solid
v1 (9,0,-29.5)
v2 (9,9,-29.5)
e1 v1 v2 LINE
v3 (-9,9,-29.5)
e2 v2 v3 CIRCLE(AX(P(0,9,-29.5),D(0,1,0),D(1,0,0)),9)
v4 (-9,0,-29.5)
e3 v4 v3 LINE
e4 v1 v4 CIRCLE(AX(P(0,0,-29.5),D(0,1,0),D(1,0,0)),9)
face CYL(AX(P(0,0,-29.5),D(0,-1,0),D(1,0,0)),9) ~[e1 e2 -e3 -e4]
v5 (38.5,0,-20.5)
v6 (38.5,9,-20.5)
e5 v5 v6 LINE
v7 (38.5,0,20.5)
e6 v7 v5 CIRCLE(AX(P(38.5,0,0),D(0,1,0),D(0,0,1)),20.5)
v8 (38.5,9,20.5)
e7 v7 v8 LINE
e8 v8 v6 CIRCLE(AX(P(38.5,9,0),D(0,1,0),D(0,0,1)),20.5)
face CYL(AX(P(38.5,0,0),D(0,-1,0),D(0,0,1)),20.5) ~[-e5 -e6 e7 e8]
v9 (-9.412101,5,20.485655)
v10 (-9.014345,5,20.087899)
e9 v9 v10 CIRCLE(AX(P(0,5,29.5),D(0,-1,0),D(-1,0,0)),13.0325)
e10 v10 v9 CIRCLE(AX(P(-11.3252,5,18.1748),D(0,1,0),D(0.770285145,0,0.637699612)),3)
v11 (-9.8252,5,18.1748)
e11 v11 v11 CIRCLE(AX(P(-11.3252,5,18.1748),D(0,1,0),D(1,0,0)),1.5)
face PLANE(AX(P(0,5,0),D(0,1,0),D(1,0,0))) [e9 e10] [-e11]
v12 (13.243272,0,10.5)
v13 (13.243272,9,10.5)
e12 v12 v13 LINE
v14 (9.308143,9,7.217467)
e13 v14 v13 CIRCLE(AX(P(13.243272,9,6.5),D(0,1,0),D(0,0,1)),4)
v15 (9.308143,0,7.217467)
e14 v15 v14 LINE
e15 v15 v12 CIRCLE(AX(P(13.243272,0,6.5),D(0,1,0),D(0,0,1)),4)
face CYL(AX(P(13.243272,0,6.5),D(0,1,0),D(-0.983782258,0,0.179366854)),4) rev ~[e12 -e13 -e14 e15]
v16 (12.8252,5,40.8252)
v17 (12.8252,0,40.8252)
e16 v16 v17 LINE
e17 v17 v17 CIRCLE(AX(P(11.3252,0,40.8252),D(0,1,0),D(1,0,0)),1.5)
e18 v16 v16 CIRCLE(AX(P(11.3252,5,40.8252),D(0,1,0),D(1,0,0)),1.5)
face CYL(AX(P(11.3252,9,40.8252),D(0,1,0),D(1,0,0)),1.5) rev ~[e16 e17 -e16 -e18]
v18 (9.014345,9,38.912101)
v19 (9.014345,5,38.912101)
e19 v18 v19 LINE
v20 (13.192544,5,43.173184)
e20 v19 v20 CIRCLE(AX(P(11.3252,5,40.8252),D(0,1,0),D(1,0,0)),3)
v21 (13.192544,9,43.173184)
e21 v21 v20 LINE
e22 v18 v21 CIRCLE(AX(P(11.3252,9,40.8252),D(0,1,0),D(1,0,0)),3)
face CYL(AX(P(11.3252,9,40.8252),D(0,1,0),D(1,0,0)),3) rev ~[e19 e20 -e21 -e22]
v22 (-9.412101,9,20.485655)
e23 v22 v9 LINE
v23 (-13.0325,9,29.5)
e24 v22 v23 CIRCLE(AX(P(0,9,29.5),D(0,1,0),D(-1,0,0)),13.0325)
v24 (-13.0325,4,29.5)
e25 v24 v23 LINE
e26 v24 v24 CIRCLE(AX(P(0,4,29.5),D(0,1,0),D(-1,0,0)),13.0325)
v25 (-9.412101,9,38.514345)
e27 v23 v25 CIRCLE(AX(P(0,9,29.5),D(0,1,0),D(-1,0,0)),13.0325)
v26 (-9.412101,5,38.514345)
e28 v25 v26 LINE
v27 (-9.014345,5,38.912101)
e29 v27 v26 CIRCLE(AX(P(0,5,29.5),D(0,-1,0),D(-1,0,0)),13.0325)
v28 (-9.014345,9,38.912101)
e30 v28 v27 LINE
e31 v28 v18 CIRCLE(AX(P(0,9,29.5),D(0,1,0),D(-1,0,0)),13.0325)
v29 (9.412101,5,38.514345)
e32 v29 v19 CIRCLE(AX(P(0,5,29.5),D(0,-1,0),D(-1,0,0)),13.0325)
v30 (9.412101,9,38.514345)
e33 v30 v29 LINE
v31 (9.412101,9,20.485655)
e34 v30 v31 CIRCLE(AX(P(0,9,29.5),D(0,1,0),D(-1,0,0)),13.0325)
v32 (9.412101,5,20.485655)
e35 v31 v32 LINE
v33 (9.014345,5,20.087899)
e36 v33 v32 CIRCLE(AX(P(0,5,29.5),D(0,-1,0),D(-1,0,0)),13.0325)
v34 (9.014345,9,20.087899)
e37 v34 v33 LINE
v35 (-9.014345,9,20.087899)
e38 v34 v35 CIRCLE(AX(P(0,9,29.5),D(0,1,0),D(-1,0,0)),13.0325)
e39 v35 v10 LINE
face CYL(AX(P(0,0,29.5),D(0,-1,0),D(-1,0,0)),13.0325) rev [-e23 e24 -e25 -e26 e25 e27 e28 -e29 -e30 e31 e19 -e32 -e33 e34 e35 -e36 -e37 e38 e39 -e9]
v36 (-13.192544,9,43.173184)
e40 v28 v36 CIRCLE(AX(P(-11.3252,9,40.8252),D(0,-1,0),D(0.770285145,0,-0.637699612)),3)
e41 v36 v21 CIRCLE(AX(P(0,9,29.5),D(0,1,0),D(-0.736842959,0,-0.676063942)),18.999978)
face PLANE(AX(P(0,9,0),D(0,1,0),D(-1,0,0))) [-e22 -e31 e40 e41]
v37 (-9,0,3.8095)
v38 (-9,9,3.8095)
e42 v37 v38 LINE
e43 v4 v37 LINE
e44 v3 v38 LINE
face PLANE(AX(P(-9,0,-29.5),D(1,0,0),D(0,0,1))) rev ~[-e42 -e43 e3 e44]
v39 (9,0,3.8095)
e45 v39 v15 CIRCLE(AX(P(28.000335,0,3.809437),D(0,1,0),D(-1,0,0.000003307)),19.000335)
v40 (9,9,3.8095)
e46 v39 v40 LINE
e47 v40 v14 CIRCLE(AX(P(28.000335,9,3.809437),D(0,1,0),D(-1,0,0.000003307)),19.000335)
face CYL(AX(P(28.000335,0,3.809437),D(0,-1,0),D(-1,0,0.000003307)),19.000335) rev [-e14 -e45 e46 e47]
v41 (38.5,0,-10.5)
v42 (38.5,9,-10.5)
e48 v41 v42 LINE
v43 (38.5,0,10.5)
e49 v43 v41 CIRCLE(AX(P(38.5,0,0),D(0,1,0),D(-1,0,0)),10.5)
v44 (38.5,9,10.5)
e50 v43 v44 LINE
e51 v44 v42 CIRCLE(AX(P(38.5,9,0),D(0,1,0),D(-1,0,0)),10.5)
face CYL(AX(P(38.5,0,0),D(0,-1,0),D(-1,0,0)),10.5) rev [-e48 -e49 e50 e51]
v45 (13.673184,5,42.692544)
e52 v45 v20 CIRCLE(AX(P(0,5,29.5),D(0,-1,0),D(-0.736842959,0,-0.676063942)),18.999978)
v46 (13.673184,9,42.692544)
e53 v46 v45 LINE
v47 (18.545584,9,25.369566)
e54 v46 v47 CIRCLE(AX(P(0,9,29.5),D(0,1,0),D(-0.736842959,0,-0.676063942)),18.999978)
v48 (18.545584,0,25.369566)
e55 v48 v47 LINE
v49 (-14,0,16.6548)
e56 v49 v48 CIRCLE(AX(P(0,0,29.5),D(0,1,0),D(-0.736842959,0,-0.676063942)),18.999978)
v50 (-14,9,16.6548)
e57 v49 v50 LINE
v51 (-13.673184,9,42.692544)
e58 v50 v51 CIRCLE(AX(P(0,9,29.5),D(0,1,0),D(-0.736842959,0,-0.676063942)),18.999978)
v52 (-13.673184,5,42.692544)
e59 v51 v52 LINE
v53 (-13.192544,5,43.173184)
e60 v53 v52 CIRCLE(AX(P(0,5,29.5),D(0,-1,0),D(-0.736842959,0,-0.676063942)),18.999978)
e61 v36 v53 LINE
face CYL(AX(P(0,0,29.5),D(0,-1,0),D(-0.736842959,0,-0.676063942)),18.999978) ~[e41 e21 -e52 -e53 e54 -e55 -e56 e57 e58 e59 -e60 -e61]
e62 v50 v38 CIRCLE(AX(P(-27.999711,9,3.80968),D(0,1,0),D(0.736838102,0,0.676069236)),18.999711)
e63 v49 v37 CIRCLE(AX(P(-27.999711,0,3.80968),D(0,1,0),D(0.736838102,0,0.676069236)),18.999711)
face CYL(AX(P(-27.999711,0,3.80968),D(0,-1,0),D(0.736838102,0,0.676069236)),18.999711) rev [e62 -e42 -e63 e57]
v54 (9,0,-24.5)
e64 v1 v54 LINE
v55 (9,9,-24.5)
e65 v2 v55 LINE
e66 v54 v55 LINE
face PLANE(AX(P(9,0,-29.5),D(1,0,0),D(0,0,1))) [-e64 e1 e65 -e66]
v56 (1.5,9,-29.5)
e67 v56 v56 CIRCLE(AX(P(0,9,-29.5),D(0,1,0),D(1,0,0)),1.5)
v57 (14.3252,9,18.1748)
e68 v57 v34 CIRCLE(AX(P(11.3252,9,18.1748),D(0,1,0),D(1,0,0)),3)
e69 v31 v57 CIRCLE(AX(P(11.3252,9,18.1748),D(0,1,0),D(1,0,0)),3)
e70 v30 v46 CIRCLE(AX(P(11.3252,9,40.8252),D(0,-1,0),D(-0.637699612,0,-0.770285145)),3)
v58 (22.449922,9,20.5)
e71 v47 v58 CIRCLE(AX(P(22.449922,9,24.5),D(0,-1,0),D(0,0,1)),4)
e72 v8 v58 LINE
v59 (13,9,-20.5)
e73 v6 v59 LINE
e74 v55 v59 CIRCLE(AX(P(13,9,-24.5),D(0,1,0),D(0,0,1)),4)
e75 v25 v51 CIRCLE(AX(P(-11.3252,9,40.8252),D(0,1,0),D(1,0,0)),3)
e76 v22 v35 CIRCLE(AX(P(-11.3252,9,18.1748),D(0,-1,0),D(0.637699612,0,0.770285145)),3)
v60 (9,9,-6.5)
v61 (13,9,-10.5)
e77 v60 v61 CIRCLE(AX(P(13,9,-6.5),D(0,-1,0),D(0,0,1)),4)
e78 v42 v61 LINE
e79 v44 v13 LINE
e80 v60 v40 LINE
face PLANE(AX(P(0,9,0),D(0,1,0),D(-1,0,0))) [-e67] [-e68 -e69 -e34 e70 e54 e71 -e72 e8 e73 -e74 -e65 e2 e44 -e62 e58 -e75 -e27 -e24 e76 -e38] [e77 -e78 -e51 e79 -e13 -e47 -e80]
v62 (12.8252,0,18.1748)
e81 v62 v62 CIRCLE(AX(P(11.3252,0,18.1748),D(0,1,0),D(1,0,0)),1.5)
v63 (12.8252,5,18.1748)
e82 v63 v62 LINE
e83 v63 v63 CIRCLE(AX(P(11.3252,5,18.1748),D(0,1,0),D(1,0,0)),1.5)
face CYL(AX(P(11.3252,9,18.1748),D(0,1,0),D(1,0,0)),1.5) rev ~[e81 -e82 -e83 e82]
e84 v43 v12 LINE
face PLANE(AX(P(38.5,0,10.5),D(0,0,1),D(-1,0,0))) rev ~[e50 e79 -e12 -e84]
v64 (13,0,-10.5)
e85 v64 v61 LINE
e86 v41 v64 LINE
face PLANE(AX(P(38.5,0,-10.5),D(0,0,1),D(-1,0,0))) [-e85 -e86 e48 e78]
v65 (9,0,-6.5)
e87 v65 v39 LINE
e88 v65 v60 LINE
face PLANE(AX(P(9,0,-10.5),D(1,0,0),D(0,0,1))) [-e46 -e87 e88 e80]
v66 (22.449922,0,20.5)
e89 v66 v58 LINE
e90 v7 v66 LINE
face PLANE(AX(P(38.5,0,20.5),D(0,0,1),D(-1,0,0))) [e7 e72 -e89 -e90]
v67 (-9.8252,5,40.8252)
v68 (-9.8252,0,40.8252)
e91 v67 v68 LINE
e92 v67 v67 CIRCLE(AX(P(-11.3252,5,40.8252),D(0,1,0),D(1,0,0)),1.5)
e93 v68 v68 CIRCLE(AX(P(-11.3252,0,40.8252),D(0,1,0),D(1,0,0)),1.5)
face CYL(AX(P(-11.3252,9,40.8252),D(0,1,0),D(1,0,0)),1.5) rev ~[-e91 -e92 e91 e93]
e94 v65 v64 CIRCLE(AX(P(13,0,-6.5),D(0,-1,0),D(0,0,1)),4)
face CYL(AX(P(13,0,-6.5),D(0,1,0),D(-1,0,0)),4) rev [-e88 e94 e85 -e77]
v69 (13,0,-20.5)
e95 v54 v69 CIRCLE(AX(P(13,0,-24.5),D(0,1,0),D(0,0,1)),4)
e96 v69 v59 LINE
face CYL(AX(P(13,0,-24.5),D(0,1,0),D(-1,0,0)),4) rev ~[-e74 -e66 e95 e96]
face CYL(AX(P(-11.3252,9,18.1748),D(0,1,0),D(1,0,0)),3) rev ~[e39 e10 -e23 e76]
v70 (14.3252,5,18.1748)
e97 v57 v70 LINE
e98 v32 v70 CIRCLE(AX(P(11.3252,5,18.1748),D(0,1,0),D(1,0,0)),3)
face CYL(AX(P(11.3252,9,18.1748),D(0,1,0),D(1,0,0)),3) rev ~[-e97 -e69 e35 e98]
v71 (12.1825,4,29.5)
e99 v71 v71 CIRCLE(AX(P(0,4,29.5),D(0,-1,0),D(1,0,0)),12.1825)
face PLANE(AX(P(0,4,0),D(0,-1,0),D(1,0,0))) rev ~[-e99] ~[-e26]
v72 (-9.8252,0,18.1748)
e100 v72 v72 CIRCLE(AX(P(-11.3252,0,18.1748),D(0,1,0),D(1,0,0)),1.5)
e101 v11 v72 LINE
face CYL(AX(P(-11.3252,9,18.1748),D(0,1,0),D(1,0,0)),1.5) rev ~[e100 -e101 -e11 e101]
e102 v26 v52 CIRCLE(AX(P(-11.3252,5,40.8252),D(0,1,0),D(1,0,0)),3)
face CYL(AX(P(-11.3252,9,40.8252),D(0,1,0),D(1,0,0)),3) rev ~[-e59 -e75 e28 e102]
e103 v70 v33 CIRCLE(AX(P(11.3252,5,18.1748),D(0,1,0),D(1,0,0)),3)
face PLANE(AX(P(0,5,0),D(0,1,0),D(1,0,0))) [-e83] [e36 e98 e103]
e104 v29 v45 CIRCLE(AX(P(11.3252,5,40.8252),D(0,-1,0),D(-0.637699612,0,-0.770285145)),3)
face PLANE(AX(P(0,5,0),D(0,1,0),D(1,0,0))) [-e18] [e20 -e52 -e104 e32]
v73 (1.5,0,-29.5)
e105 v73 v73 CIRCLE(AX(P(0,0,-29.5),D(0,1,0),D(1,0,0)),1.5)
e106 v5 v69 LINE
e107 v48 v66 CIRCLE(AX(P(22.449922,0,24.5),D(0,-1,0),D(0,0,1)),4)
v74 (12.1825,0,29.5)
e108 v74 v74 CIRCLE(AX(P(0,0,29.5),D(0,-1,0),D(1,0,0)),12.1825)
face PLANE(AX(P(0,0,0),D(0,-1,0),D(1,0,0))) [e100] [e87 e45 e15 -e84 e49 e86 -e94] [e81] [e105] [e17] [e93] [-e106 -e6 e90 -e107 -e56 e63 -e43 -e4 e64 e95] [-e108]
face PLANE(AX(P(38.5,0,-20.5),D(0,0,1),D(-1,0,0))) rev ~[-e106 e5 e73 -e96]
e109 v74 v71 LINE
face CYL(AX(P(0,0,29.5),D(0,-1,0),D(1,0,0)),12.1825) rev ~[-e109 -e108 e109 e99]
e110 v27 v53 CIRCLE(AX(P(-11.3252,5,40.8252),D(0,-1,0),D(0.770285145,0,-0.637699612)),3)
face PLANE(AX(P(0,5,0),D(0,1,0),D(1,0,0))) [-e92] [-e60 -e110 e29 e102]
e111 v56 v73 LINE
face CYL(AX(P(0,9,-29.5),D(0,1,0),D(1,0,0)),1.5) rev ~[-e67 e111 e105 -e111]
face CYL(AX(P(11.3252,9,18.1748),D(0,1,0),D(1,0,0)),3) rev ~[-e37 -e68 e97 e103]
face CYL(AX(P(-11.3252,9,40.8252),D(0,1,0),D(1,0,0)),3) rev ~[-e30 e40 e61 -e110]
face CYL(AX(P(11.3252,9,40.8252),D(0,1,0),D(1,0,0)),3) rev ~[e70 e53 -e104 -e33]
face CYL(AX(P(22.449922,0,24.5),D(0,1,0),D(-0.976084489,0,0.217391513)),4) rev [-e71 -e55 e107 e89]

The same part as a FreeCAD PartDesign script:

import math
import FreeCAD as App
import Part
import Sketcher

V = App.Vector


def edges_at(feature, points):
    """Names of the edges that pass closest to the given points."""
    edges = feature.Shape.Edges
    near = lambda p: min(range(len(edges)), key=lambda i: edges[i].distToShape(Part.Vertex(*p))[0])
    return sorted({f"Edge{near(p) + 1}" for p in points})

doc = App.newDocument("Part")
params = doc.addObject("Spreadsheet::Sheet", "Params")
for row, (alias, value) in enumerate([
    ("sketch1_radius", "19 mm"),
    ("sketch1_radius2", "9 mm"),
    ("sketch1_width", "29.5 mm"),
    ("pad1_length", "9 mm"),
    ("pad2_length", "4 mm"),
    ("sketch3_diameter", "3 mm"),
    ("sketch4_diameter", "3 mm"),
    ("sketch5_diameter", "6 mm"),
    ("pocket3_length", "4 mm"),
    ("fillet_radius", "4 mm"),
], start=1):
    params.set(f"A{row}", alias)
    params.set(f"B{row}", "=" + value)
    params.setAlias(f"B{row}", alias)

body = doc.addObject("PartDesign::Body", "Body")

# Sketch on XZ plane
sketch1 = doc.addObject("Sketcher::SketchObject", "Sketch")
body.addObject(sketch1)
sketch1.AttachmentSupport = (doc.XZ_Plane, [""])
sketch1.MapMode = "FlatFace"
sketch1.addGeometry(Part.ArcOfCircle(Part.Circle(V(-28, 3.8095, 0), V(0, 0, 1), 19.000046), math.radians(0), math.radians(42.537048)), False)
sketch1.addGeometry(Part.ArcOfCircle(Part.Circle(V(0, 29.5, 0), V(0, 0, 1), 18.999978), math.radians(-28.273714), math.radians(222.536826)), False)
sketch1.addGeometry(Part.LineSegment(V(16.7332, 20.5, 0), V(38.5, 20.5, 0)), False)
sketch1.addGeometry(Part.ArcOfCircle(Part.Circle(V(38.5, 0, 0), V(0, 0, 1), 20.5), math.radians(-90), math.radians(90)), False)
sketch1.addGeometry(Part.LineSegment(V(38.5, -20.5, 0), V(9, -20.5, 0)), False)
sketch1.addGeometry(Part.LineSegment(V(9, -20.5, 0), V(9, -29.5, 0)), False)
sketch1.addGeometry(Part.ArcOfCircle(Part.Circle(V(0, -29.5, 0), V(0, 0, 1), 9), math.radians(180), math.radians(360)), False)
sketch1.addGeometry(Part.LineSegment(V(-9, -29.5, 0), V(-9, 3.8095, 0)), False)
sketch1.addGeometry(Part.LineSegment(V(9, 3.8095, 0), V(9, -10.5, 0)), False)
sketch1.addGeometry(Part.LineSegment(V(9, -10.5, 0), V(38.5, -10.5, 0)), False)
sketch1.addGeometry(Part.ArcOfCircle(Part.Circle(V(38.5, 0, 0), V(0, 0, 1), 10.5), math.radians(-90), math.radians(90)), False)
sketch1.addGeometry(Part.LineSegment(V(38.5, 10.5, 0), V(10.2169, 10.5, 0)), False)
sketch1.addGeometry(Part.ArcOfCircle(Part.Circle(V(28, 3.8095, 0), V(0, 0, 1), 19), math.radians(159.382295), math.radians(180)), False)
sketch1.addGeometry(Part.Circle(V(0, 29.5, 0), V(0, 0, 1), 13.0325), False)
sketch1.addConstraint(Sketcher.Constraint("Tangent", 0, 2, 1, 2))
sketch1.addConstraint(Sketcher.Constraint("Coincident", 1, 1, 2, 1))
sketch1.addConstraint(Sketcher.Constraint("Tangent", 2, 2, 3, 2))
sketch1.addConstraint(Sketcher.Constraint("Tangent", 3, 1, 4, 1))
sketch1.addConstraint(Sketcher.Constraint("Coincident", 4, 2, 5, 1))
sketch1.addConstraint(Sketcher.Constraint("Tangent", 5, 2, 6, 2))
sketch1.addConstraint(Sketcher.Constraint("Tangent", 6, 1, 7, 1))
sketch1.addConstraint(Sketcher.Constraint("Tangent", 7, 2, 0, 1))
sketch1.addConstraint(Sketcher.Constraint("Coincident", 8, 2, 9, 1))
sketch1.addConstraint(Sketcher.Constraint("Tangent", 9, 2, 10, 1))
sketch1.addConstraint(Sketcher.Constraint("Tangent", 10, 2, 11, 1))
sketch1.addConstraint(Sketcher.Constraint("Coincident", 11, 2, 12, 1))
sketch1.addConstraint(Sketcher.Constraint("Tangent", 12, 2, 8, 1))
sketch1.addConstraint(Sketcher.Constraint("Horizontal", 2))
sketch1.addConstraint(Sketcher.Constraint("Horizontal", 4))
sketch1.addConstraint(Sketcher.Constraint("Vertical", 5))
sketch1.addConstraint(Sketcher.Constraint("Vertical", 7))
sketch1.addConstraint(Sketcher.Constraint("Vertical", 8))
sketch1.addConstraint(Sketcher.Constraint("Horizontal", 9))
sketch1.addConstraint(Sketcher.Constraint("Horizontal", 11))
sketch1.addConstraint(Sketcher.Constraint("Coincident", 10, 3, 3, 3))
sketch1.addConstraint(Sketcher.Constraint("Coincident", 13, 3, 1, 3))
sketch1.addConstraint(Sketcher.Constraint("Equal", 0, 1))
sketch1.addConstraint(Sketcher.Constraint("Equal", 1, 12))
sketch1.addConstraint(Sketcher.Constraint("Symmetric", 1, 3, 6, 3, -1, 1))
sketch1.addConstraint(Sketcher.Constraint("Symmetric", 0, 3, 12, 3, -2))
sketch1.addConstraint(Sketcher.Constraint("PointOnObject", 1, 3, -2))
sketch1.addConstraint(Sketcher.Constraint("PointOnObject", 3, 3, -1))
sketch1.addConstraint(Sketcher.Constraint("Radius", 0, 19.0))
sketch1.addConstraint(Sketcher.Constraint("Radius", 6, 9.0))
sketch1.addConstraint(Sketcher.Constraint("Diameter", 13, 26.065))
sketch1.addConstraint(Sketcher.Constraint("DistanceX", 4, 2, 4, 1, 29.5))
sketch1.addConstraint(Sketcher.Constraint("DistanceY", 6, 3, 1, 3, 59.0))
sketch1.addConstraint(Sketcher.Constraint("DistanceY", 4, 2, 8, 2, 10.0))
sketch1.addConstraint(Sketcher.Constraint("DistanceY", 5, 2, 8, 2, 19.0))
sketch1.setExpression("Constraints[28]", "Params.sketch1_radius")
sketch1.setExpression("Constraints[29]", "Params.sketch1_radius2")
sketch1.setExpression("Constraints[31]", "Params.sketch1_width")
pad1 = doc.addObject("PartDesign::Pad", "Pad")
body.addObject(pad1)
pad1.Profile = sketch1
pad1.setExpression("Length", "Params.pad1_length")
pad1.Reversed = True

# Sketch on XZ plane
sketch2 = doc.addObject("Sketcher::SketchObject", "Sketch001")
body.addObject(sketch2)
sketch2.AttachmentSupport = (doc.XZ_Plane, [""])
sketch2.MapMode = "FlatFace"
sketch2.addGeometry(Part.Circle(V(0, 29.5, 0), V(0, 0, 1), 13.0325), False)
sketch2.addGeometry(Part.Circle(V(0, 29.5, 0), V(0, 0, 1), 12.1825), False)
sketch2.addConstraint(Sketcher.Constraint("Coincident", 1, 3, 0, 3))
sketch2.addConstraint(Sketcher.Constraint("PointOnObject", 0, 3, -2))
sketch2.addConstraint(Sketcher.Constraint("Diameter", 0, 26.065))
sketch2.addConstraint(Sketcher.Constraint("Diameter", 1, 24.365))
sketch2.addConstraint(Sketcher.Constraint("DistanceY", -1, 1, 0, 3, 29.5))
pad2 = doc.addObject("PartDesign::Pad", "Pad001")
body.addObject(pad2)
pad2.Profile = sketch2
pad2.setExpression("Length", "Params.pad2_length")
pad2.Reversed = True

# Sketch on XZ plane
sketch3 = doc.addObject("Sketcher::SketchObject", "Sketch002")
body.addObject(sketch3)
sketch3.AttachmentSupport = (doc.XZ_Plane, [""])
sketch3.MapMode = "FlatFace"
sketch3.AttachmentOffset = App.Placement(V(0, 0, -9), App.Rotation())
sketch3.addGeometry(Part.Circle(V(0, -29.5, 0), V(0, 0, 1), 1.5), False)
sketch3.addConstraint(Sketcher.Constraint("PointOnObject", 0, 3, -2))
sketch3.addConstraint(Sketcher.Constraint("Diameter", 0, 3.0))
sketch3.addConstraint(Sketcher.Constraint("DistanceY", 0, 3, -1, 1, 29.5))
sketch3.setExpression("Constraints[1]", "Params.sketch3_diameter")
pocket1 = doc.addObject("PartDesign::Pocket", "Pocket")
body.addObject(pocket1)
pocket1.Profile = sketch3
pocket1.Type = "ThroughAll"
pocket1.Reversed = True

# Sketch on XZ plane
sketch4 = doc.addObject("Sketcher::SketchObject", "Sketch003")
body.addObject(sketch4)
sketch4.AttachmentSupport = (doc.XZ_Plane, [""])
sketch4.MapMode = "FlatFace"
sketch4.AttachmentOffset = App.Placement(V(0, 0, -9), App.Rotation())
sketch4.addGeometry(Part.Circle(V(-11.3252, 18.1748, 0), V(0, 0, 1), 1.5), False)
sketch4.addGeometry(Part.Circle(V(-11.3252, 40.8252, 0), V(0, 0, 1), 1.5), False)
sketch4.addGeometry(Part.Circle(V(11.3252, 40.8252, 0), V(0, 0, 1), 1.5), False)
sketch4.addGeometry(Part.Circle(V(11.3252, 18.1748, 0), V(0, 0, 1), 1.5), False)
sketch4.addConstraint(Sketcher.Constraint("Equal", 0, 1))
sketch4.addConstraint(Sketcher.Constraint("Equal", 1, 2))
sketch4.addConstraint(Sketcher.Constraint("Equal", 2, 3))
sketch4.addConstraint(Sketcher.Constraint("Symmetric", 1, 3, 2, 3, -2))
sketch4.addConstraint(Sketcher.Constraint("Symmetric", 0, 3, 3, 3, -2))
sketch4.addConstraint(Sketcher.Constraint("Vertical", 0, 3, 1, 3))
sketch4.addConstraint(Sketcher.Constraint("Diameter", 0, 3.0))
sketch4.addConstraint(Sketcher.Constraint("DistanceX", 0, 3, -1, 1, 11.3252))
sketch4.addConstraint(Sketcher.Constraint("DistanceY", -1, 1, 0, 3, 18.1748))
sketch4.addConstraint(Sketcher.Constraint("DistanceY", -1, 1, 1, 3, 40.8252))
sketch4.setExpression("Constraints[6]", "Params.sketch4_diameter")
pocket2 = doc.addObject("PartDesign::Pocket", "Pocket001")
body.addObject(pocket2)
pocket2.Profile = sketch4
pocket2.Type = "ThroughAll"
pocket2.Reversed = True

# Sketch on XZ plane
sketch5 = doc.addObject("Sketcher::SketchObject", "Sketch004")
body.addObject(sketch5)
sketch5.AttachmentSupport = (doc.XZ_Plane, [""])
sketch5.MapMode = "FlatFace"
sketch5.AttachmentOffset = App.Placement(V(0, 0, -9), App.Rotation())
sketch5.addGeometry(Part.Circle(V(-11.3252, 40.8252, 0), V(0, 0, 1), 3), False)
sketch5.addGeometry(Part.Circle(V(-11.3252, 18.1748, 0), V(0, 0, 1), 3), False)
sketch5.addGeometry(Part.Circle(V(11.3252, 40.8252, 0), V(0, 0, 1), 3), False)
sketch5.addGeometry(Part.Circle(V(11.3252, 18.1748, 0), V(0, 0, 1), 3), False)
sketch5.addConstraint(Sketcher.Constraint("Equal", 0, 1))
sketch5.addConstraint(Sketcher.Constraint("Equal", 1, 2))
sketch5.addConstraint(Sketcher.Constraint("Equal", 2, 3))
sketch5.addConstraint(Sketcher.Constraint("Symmetric", 0, 3, 2, 3, -2))
sketch5.addConstraint(Sketcher.Constraint("Symmetric", 1, 3, 3, 3, -2))
sketch5.addConstraint(Sketcher.Constraint("Vertical", 0, 3, 1, 3))
sketch5.addConstraint(Sketcher.Constraint("Diameter", 0, 6.0))
sketch5.addConstraint(Sketcher.Constraint("DistanceX", 0, 3, -1, 1, 11.3252))
sketch5.addConstraint(Sketcher.Constraint("DistanceY", -1, 1, 0, 3, 40.8252))
sketch5.addConstraint(Sketcher.Constraint("DistanceY", -1, 1, 1, 3, 18.1748))
sketch5.setExpression("Constraints[6]", "Params.sketch5_diameter")
pocket3 = doc.addObject("PartDesign::Pocket", "Pocket002")
body.addObject(pocket3)
pocket3.Profile = sketch5
pocket3.setExpression("Length", "Params.pocket3_length")
pocket3.Reversed = True
doc.recompute()

fillet = doc.addObject("PartDesign::Fillet", "Fillet")
body.addObject(fillet)
fillet.Base = (pocket3, edges_at(pocket3, [
    (16.733, 4.5, 20.5),
    (10.217, 4.5, 10.5),
    (9, 4.5, -10.5),
    (9, 4.5, -20.5),
]))
fillet.setExpression("Radius", "Params.fillet_radius")

doc.recompute()
